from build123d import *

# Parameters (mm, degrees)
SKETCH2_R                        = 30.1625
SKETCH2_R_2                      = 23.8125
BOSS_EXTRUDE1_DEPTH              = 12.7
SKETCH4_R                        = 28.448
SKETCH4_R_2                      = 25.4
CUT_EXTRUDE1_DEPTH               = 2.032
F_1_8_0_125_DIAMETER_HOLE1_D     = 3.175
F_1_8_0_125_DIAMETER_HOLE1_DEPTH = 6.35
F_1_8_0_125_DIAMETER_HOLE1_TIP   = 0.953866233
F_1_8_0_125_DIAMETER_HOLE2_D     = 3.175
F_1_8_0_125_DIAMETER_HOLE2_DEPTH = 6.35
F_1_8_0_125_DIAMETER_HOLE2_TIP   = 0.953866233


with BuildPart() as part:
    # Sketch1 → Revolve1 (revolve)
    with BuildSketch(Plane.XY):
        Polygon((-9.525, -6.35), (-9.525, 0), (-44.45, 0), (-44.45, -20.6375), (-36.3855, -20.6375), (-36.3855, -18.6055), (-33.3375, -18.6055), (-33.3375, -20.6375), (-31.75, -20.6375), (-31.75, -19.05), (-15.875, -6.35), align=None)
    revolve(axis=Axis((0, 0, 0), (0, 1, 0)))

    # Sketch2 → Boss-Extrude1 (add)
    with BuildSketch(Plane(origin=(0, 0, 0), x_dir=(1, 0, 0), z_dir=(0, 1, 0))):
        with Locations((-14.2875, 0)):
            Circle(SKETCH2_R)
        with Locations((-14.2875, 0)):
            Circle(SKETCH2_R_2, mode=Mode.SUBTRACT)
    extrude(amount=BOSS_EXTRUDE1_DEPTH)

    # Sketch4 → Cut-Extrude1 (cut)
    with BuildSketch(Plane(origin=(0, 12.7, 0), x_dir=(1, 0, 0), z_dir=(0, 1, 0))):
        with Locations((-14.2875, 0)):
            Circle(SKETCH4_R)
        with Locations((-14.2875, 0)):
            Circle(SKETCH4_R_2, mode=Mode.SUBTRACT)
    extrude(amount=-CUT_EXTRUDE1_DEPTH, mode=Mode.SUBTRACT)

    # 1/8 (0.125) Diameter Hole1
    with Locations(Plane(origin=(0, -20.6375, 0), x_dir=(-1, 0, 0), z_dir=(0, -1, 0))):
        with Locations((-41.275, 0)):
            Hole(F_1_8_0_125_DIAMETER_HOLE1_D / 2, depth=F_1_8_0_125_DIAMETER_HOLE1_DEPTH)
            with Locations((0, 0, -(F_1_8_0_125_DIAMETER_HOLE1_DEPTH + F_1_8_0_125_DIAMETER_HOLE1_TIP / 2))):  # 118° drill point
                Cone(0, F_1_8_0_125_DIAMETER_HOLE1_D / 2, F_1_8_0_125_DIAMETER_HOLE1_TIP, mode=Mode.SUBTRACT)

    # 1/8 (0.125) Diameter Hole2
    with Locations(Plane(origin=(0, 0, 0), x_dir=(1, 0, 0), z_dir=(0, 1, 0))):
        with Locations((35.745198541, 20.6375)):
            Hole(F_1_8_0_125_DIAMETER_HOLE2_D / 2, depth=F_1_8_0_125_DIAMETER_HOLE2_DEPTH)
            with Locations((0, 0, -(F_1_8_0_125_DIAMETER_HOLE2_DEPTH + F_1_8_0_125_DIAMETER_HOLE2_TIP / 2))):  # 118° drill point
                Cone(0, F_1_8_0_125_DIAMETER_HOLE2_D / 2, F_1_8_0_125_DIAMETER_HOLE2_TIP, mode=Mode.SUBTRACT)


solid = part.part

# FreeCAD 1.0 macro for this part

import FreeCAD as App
import Part
import Sketcher
from FreeCAD import Vector
Q = App.Units.Quantity


def add_polygon(sketch, points):
    """Adds a closed chain of lines whose ends are joined by coincident constraints."""
    first, n = sketch.GeometryCount, len(points)
    for a, b in zip(points, points[1:] + points[:1]):
        sketch.addGeometry(Part.LineSegment(App.Vector(*a, 0), App.Vector(*b, 0)), False)
    for i in range(n):
        sketch.addConstraint(Sketcher.Constraint("Coincident", first + i, 2, first + (i + 1) % n, 1))

doc = App.newDocument("Part")
params = doc.addObject("Spreadsheet::Sheet", "Params")
for row, (alias, value) in enumerate([
    ("sketch1_width", "0.12 in"),
    ("sketch1_width2", "0.25 in"),
    ("sketch1_height", "0.08 in"),
    ("sketch1_width3", "1.375 in"),
    ("sketch1_width4", "0.0625 in"),
    ("revolution_angle", "360 deg"),
    ("sketch2_diameter", "2.375 in"),
    ("sketch2_diameter2", "1.875 in"),
    ("pad1_length", "0.5 in"),
    ("sketch3_diameter", "2 in"),
    ("sketch3_diameter2", "2.24 in"),
    ("pocket1_length", "0.08 in"),
    ("sketch4_diameter", "0.125 in"),
    ("hole_diameter", "0.125 in"),
    ("hole_depth", "0.25 in"),
    ("sketch5_diameter", "0.125 in"),
    ("hole2_diameter", "0.125 in"),
    ("hole2_depth", "0.25 in"),
], start=1):
    params.set(f"A{row}", alias)
    params.set(f"B{row}", "=" + value)
    params.setAlias(f"B{row}", alias)

body = doc.addObject("PartDesign::Body", "Body")

sketch1 = doc.addObject("Sketcher::SketchObject", "Sketch")
body.addObject(sketch1)
sketch1.AttachmentSupport = (doc.XY_Plane, [""])
sketch1.MapMode = "FlatFace"
add_polygon(sketch1, [(-9.5, -6.3), (-9.5, 0), (-44.5, 0), (-44.5, -20.6), (-36.4, -20.6), (-36.4, -18.6), (-33.3, -18.6), (-33.3, -20.6), (-31.8, -20.6), (-31.8, -19.1), (-15.9, -6.3)])
sketch1.addConstraint([
    Sketcher.Constraint("Vertical", 0),
    Sketcher.Constraint("Horizontal", 1),
    Sketcher.Constraint("Vertical", 2),
    Sketcher.Constraint("Horizontal", 3),
    Sketcher.Constraint("Vertical", 4),
    Sketcher.Constraint("Horizontal", 5),
    Sketcher.Constraint("Vertical", 6),
    Sketcher.Constraint("Horizontal", 7),
    Sketcher.Constraint("Vertical", 8),
    Sketcher.Constraint("Horizontal", 10),
    Sketcher.Constraint("PointOnObject", 0, 2, -1),
    Sketcher.Constraint("Horizontal", 3, 2, 6, 2),
    Sketcher.Constraint("Equal", 10, 0),
    Sketcher.Constraint("Equal", 7, 8),
    Sketcher.Constraint("DistanceX", 5, 1, 5, 2, Q("0.12 in")),
    Sketcher.Constraint("DistanceX", 10, 1, 10, 2, Q("0.25 in")),
    Sketcher.Constraint("DistanceY", 4, 1, 4, 2, Q("0.08 in")),
    Sketcher.Constraint("DistanceX", 2, 2, 7, 2, Q("0.5 in")),
    Sketcher.Constraint("DistanceY", 8, 2, 9, 2, Q("0.5 in")),
    Sketcher.Constraint("DistanceX", 1, 2, 1, 1, Q("1.375 in")),
    Sketcher.Constraint("DistanceX", 7, 1, 7, 2, Q("0.0625 in")),
    Sketcher.Constraint("DistanceX", 1, 2, -1, 1, Q("1.75 in")),
])
sketch1.setExpression("Constraints[25]", "Params.sketch1_width")
sketch1.setExpression("Constraints[26]", "Params.sketch1_width2")
sketch1.setExpression("Constraints[27]", "Params.sketch1_height")
sketch1.setExpression("Constraints[30]", "Params.sketch1_width3")
sketch1.setExpression("Constraints[31]", "Params.sketch1_width4")
revolution = doc.addObject("PartDesign::Revolution", "Revolution")
body.addObject(revolution)
revolution.Profile = sketch1
revolution.ReferenceAxis = (sketch1, ["V_Axis"])
revolution.setExpression("Angle", "Params.revolution_angle")

sketch2 = doc.addObject("Sketcher::SketchObject", "Sketch001")
body.addObject(sketch2)
sketch2.AttachmentSupport = (doc.XZ_Plane, [""])
sketch2.MapMode = "FlatFace"
sketch2.addGeometry([
    Part.Circle(Vector(-14, 0, 0), Vector(0, 0, 1), 30),
    Part.Circle(Vector(-14, 0, 0), Vector(0, 0, 1), 24),
], False)
sketch2.addConstraint([
    Sketcher.Constraint("Coincident", 1, 3, 0, 3),
    Sketcher.Constraint("PointOnObject", 0, 3, -1),
    Sketcher.Constraint("Diameter", 0, Q("2.375 in")),
    Sketcher.Constraint("Diameter", 1, Q("1.875 in")),
    Sketcher.Constraint("DistanceX", 0, 3, -1, 1, Q("0.5625 in")),
])
sketch2.setExpression("Constraints[2]", "Params.sketch2_diameter")
sketch2.setExpression("Constraints[3]", "Params.sketch2_diameter2")
pad1 = doc.addObject("PartDesign::Pad", "Pad")
body.addObject(pad1)
pad1.Profile = sketch2
pad1.setExpression("Length", "Params.pad1_length")
pad1.Reversed = True

sketch3 = doc.addObject("Sketcher::SketchObject", "Sketch002")
body.addObject(sketch3)
sketch3.AttachmentSupport = (doc.XZ_Plane, [""])
sketch3.MapMode = "FlatFace"
sketch3.AttachmentOffset = App.Placement(Vector(0, 0, -0.5 * 25.4), App.Rotation())
sketch3.addGeometry([
    Part.Circle(Vector(-14, 0, 0), Vector(0, 0, 1), 28),
    Part.Circle(Vector(-14, 0, 0), Vector(0, 0, 1), 25),
], False)
sketch3.addConstraint([
    Sketcher.Constraint("Coincident", 1, 3, 0, 3),
    Sketcher.Constraint("PointOnObject", 0, 3, -1),
    Sketcher.Constraint("Diameter", 1, Q("2 in")),
    Sketcher.Constraint("Diameter", 0, Q("2.24 in")),
    Sketcher.Constraint("DistanceX", 0, 3, -1, 1, Q("0.5625 in")),
])
sketch3.setExpression("Constraints[2]", "Params.sketch3_diameter")
sketch3.setExpression("Constraints[3]", "Params.sketch3_diameter2")
pocket1 = doc.addObject("PartDesign::Pocket", "Pocket")
body.addObject(pocket1)
pocket1.Profile = sketch3
pocket1.setExpression("Length", "Params.pocket1_length")
pocket1.Reversed = True

sketch4 = doc.addObject("Sketcher::SketchObject", "Sketch003")
body.addObject(sketch4)
sketch4.AttachmentSupport = (doc.XZ_Plane, [""])
sketch4.MapMode = "FlatFace"
sketch4.AttachmentOffset = App.Placement(Vector(0, 0, 0.8125 * 25.4), App.Rotation())
sketch4.addGeometry(Part.Circle(Vector(41.3, 0, 0), Vector(0, 0, 1), 1.6), False)
sketch4.addConstraint([
    Sketcher.Constraint("PointOnObject", 0, 3, -1),
    Sketcher.Constraint("Diameter", 0, Q("0.125 in")),
    Sketcher.Constraint("DistanceX", -1, 1, 0, 3, Q("1.625 in")),
])
sketch4.setExpression("Constraints[1]", "Params.sketch4_diameter")
doc.recompute()
hole = doc.addObject("PartDesign::Hole", "Hole")
body.addObject(hole)
hole.Profile = sketch4
hole.ThreadType = "None"
hole.setExpression("Diameter", "Params.hole_diameter")
hole.DepthType = "Dimension"
hole.setExpression("Depth", "Params.hole_depth")
hole.DrillPoint = "Angled"
hole.DrillPointAngle = 118

sketch5 = doc.addObject("Sketcher::SketchObject", "Sketch004")
body.addObject(sketch5)
sketch5.AttachmentSupport = (doc.XZ_Plane, [""])
sketch5.MapMode = "FlatFace"
sketch5.addGeometry(Part.Circle(Vector(35.7, -20.6, 0), Vector(0, 0, 1), 1.6), False)
sketch5.addConstraint([
    Sketcher.Constraint("Diameter", 0, Q("0.125 in")),
    Sketcher.Constraint("DistanceY", 0, 3, -1, 1, Q("0.8125 in")),
    Sketcher.Constraint("DistanceX", -1, 1, 0, 3, 35.745199),
])
sketch5.setExpression("Constraints[0]", "Params.sketch5_diameter")
doc.recompute()
hole2 = doc.addObject("PartDesign::Hole", "Hole001")
body.addObject(hole2)
hole2.Profile = sketch5
hole2.ThreadType = "None"
hole2.setExpression("Diameter", "Params.hole2_diameter")
hole2.DepthType = "Dimension"
hole2.setExpression("Depth", "Params.hole2_depth")
hole2.DrillPoint = "Angled"
hole2.DrillPointAngle = 118
hole2.Reversed = True

doc.recompute()
